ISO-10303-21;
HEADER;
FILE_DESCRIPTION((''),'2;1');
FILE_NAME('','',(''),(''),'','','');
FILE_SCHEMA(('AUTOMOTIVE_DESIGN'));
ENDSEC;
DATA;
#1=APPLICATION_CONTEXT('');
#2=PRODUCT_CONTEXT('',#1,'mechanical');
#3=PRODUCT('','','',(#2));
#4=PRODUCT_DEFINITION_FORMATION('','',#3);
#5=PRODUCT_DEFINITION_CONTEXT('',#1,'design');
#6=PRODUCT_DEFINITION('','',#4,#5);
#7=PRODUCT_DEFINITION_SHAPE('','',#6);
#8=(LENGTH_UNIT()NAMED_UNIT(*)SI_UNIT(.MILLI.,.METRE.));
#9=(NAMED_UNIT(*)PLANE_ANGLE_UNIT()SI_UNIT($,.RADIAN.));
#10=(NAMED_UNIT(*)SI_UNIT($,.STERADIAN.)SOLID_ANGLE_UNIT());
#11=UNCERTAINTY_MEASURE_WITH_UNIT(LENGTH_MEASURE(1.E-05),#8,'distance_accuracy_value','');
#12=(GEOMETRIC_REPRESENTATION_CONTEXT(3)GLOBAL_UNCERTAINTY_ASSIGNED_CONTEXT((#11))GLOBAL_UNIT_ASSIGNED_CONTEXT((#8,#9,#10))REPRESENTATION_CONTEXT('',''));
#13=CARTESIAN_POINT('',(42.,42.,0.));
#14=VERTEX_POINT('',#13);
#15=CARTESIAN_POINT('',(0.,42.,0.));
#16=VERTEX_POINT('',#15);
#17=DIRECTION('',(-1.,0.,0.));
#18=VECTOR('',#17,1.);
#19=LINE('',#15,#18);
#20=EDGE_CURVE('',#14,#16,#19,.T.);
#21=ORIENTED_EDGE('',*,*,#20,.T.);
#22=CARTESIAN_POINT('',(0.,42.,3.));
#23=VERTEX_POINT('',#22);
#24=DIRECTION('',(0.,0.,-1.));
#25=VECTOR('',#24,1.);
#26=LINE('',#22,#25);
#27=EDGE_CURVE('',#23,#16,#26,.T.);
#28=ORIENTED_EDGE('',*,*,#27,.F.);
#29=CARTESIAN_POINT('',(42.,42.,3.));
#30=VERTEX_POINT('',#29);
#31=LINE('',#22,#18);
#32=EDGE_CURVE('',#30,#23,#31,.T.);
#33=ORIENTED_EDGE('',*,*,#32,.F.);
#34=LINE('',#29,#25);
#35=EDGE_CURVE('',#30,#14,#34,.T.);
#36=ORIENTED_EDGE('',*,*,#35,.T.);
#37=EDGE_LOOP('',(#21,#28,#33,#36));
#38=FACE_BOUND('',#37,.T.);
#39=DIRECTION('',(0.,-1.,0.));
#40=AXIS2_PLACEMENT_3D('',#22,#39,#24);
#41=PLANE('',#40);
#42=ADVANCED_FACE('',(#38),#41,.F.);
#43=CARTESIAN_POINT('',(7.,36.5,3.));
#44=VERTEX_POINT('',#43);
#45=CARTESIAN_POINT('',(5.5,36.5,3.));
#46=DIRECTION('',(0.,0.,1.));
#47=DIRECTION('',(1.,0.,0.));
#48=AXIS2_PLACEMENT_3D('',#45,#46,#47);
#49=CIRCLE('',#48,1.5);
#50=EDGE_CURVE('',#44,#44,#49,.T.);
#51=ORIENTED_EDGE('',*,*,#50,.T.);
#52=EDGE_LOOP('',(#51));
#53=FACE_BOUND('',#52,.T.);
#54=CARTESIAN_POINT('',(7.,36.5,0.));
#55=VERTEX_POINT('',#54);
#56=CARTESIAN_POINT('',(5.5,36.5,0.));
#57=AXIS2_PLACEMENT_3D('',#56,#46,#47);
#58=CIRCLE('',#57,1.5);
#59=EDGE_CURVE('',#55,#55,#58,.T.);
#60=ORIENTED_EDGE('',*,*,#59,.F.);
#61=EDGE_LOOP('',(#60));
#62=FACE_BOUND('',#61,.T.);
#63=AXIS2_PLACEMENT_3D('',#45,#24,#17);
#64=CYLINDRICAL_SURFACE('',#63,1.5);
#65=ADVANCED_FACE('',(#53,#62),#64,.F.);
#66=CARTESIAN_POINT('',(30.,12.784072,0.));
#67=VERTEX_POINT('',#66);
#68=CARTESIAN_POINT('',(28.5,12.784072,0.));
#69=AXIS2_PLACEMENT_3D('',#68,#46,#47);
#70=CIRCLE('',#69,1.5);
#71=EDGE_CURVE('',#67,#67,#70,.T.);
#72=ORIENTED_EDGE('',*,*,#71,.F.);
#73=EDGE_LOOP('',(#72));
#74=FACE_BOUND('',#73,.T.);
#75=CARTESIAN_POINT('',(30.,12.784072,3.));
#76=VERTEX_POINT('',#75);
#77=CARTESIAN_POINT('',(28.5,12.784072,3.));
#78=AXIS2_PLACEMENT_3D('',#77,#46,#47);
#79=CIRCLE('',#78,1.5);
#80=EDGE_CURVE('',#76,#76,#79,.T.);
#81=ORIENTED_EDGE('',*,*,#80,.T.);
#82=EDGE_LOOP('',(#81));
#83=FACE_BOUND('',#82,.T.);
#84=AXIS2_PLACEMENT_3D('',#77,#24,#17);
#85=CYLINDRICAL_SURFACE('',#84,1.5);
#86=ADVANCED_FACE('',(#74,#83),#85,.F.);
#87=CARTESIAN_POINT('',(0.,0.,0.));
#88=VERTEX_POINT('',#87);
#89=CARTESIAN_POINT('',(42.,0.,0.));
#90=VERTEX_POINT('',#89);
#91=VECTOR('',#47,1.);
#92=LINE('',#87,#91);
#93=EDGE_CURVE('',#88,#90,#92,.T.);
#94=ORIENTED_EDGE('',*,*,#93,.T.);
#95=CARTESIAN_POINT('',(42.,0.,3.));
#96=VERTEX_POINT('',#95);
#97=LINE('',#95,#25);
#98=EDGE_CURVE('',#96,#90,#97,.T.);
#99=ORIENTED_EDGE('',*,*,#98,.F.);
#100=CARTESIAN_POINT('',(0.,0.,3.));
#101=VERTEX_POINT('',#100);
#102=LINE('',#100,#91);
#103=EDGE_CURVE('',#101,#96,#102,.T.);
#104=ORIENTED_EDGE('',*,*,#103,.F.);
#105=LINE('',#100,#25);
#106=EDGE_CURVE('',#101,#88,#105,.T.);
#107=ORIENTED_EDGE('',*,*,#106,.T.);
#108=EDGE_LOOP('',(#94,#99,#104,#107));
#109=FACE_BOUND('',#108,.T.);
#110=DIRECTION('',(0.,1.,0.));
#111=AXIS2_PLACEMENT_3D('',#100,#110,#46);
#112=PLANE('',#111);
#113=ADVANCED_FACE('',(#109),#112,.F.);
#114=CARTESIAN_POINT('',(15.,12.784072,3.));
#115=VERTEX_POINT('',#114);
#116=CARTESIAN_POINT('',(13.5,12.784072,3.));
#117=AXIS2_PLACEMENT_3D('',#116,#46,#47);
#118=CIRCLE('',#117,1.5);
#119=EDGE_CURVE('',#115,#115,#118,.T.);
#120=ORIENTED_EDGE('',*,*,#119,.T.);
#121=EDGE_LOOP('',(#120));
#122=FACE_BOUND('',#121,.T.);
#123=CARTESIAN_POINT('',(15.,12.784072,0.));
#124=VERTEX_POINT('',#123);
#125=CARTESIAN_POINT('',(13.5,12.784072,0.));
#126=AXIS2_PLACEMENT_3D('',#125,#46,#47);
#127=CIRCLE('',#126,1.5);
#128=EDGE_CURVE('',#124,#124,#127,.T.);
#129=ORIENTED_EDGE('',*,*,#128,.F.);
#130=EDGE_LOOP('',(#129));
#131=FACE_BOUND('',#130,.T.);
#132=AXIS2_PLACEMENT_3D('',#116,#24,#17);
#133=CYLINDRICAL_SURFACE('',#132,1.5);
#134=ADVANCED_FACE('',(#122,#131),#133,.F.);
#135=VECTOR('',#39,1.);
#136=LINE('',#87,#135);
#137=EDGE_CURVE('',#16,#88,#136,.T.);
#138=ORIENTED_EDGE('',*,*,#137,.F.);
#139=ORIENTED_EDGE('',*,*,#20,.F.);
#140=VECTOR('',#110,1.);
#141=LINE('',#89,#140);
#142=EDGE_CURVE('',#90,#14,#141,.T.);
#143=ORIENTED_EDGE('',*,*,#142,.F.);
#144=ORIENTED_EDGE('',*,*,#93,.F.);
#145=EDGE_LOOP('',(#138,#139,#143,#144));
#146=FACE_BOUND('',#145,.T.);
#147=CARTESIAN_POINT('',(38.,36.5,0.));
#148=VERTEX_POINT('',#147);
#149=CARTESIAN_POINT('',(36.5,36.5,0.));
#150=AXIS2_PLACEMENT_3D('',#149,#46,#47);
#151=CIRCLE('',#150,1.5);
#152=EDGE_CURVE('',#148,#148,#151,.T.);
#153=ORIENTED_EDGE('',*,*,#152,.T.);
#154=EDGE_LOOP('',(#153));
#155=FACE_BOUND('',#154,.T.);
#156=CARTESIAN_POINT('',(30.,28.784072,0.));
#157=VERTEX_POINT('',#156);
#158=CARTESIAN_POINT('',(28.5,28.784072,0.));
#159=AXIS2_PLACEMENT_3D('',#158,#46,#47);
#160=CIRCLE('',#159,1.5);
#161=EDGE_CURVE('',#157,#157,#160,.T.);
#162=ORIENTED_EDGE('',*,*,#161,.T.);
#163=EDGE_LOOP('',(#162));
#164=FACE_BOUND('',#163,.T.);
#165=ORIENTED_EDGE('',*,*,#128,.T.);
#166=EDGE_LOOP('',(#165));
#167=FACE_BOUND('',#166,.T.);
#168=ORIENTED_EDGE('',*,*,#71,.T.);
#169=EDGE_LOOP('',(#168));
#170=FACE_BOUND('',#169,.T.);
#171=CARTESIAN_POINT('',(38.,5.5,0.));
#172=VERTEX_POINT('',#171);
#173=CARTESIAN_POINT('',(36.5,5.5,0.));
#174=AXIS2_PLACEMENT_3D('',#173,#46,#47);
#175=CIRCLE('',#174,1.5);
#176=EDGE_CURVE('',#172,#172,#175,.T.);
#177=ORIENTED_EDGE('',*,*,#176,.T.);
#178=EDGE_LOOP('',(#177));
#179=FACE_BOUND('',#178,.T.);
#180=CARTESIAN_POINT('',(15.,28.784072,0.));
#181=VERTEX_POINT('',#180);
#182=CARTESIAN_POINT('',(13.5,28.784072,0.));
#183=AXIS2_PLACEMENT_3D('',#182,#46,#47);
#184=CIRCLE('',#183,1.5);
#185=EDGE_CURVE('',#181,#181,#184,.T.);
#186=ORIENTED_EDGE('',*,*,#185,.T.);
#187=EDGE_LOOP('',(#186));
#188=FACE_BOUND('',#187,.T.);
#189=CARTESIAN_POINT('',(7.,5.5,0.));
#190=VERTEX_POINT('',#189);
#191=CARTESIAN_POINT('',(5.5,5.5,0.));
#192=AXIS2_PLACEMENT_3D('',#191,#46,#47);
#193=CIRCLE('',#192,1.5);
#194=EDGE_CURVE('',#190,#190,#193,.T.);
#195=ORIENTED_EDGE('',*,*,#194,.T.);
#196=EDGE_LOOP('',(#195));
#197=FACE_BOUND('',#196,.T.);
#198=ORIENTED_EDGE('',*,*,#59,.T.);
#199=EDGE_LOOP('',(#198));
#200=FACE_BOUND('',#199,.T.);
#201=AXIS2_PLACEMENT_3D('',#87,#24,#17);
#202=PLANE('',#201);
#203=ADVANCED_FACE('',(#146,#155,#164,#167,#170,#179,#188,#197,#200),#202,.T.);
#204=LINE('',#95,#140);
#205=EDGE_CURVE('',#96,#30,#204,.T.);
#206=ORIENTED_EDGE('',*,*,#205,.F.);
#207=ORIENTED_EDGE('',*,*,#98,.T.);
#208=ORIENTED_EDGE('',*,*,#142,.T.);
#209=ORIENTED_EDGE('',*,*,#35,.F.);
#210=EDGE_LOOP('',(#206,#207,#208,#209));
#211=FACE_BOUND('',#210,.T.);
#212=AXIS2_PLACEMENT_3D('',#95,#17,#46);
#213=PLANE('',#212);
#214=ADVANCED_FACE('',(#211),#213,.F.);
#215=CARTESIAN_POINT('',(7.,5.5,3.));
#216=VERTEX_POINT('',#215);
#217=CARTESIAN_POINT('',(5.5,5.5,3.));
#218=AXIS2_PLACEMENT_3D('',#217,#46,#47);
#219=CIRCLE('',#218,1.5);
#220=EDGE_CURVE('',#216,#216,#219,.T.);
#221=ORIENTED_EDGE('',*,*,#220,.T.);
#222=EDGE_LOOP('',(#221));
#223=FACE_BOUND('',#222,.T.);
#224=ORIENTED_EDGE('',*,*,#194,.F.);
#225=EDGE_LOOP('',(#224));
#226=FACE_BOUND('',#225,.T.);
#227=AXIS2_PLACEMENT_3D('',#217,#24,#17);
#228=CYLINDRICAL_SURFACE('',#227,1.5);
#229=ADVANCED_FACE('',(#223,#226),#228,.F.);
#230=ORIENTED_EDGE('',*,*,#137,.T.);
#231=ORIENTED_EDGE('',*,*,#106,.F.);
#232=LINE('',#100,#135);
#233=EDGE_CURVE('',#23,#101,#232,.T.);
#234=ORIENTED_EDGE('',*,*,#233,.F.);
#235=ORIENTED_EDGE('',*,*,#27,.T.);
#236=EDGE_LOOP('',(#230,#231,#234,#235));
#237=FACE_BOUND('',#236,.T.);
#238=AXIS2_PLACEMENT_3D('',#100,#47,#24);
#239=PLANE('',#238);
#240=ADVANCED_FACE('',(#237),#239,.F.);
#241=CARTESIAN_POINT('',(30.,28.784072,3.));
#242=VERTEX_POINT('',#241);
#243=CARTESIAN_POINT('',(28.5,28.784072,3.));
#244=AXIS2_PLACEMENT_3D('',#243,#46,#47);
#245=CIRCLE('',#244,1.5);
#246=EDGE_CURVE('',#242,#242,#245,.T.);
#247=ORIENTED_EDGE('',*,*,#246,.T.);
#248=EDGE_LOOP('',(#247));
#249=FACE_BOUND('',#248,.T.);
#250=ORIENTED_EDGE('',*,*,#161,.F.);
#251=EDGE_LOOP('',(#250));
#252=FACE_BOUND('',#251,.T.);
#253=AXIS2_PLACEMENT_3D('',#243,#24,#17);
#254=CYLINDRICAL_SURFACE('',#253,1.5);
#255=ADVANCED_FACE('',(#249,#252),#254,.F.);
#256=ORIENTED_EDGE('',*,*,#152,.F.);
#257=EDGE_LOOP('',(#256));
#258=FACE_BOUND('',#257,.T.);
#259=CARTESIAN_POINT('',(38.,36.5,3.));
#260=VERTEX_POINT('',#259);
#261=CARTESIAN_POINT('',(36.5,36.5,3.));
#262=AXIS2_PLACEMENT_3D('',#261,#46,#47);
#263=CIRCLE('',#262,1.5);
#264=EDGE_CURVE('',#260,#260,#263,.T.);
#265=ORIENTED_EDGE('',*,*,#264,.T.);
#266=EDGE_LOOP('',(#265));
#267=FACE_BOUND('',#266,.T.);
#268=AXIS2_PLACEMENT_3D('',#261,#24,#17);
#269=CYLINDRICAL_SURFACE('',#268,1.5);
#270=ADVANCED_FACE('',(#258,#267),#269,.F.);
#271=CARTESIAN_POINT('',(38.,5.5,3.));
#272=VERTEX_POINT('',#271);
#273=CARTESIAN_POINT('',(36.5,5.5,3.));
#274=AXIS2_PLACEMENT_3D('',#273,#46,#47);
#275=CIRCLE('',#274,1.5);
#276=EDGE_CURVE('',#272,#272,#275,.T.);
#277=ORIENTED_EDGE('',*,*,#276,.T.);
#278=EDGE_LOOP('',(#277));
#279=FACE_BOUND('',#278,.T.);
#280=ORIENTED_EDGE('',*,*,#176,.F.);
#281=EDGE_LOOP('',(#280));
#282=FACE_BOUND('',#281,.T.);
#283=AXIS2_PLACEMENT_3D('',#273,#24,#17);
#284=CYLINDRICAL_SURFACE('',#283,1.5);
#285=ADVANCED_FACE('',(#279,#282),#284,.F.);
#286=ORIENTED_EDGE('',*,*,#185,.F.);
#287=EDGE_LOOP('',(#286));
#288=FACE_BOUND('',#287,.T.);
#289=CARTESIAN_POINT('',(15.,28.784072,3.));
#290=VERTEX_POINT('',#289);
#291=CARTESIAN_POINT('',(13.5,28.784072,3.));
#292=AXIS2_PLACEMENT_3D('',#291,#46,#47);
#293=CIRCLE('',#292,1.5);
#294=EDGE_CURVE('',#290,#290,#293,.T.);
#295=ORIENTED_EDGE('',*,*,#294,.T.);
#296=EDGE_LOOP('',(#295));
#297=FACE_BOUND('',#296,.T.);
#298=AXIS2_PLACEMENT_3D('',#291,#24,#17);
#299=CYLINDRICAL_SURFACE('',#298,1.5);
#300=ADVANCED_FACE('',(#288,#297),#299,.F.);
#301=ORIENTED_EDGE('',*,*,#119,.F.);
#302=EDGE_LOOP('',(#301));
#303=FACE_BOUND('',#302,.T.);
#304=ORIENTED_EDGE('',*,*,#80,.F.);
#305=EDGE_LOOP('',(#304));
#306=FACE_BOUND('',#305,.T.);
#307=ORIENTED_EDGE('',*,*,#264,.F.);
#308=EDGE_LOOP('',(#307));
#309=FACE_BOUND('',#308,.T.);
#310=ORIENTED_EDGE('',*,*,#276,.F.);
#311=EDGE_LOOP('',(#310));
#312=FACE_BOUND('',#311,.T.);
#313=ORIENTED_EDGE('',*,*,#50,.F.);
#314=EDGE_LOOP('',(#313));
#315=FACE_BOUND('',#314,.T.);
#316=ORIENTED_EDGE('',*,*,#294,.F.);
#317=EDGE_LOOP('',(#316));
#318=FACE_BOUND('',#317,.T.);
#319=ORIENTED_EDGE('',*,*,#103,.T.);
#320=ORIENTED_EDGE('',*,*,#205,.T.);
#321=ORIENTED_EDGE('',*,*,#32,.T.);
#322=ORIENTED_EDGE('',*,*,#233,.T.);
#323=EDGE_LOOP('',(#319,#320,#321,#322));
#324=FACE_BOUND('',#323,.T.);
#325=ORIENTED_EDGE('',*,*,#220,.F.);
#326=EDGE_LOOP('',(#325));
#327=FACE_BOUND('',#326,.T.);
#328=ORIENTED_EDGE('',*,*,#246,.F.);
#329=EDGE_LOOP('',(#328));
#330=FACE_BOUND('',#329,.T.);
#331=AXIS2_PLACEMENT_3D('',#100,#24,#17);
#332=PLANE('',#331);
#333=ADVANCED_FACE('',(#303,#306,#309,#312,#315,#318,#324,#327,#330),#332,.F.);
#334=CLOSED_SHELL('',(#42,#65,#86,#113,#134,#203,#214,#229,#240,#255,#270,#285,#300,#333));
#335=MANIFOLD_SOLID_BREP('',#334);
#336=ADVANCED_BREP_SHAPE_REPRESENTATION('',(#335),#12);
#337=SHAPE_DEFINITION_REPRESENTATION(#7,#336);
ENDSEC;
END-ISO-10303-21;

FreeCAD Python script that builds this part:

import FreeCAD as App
import Part
import Sketcher

V = App.Vector
Q = App.Units.Quantity

doc = App.newDocument("Part")
params = doc.addObject("Spreadsheet::Sheet", "Params")
for row, (alias, value) in enumerate([
    ("sketch1_diameter", "3 mm"),
    ("sketch1_width", "42 mm"),
    ("pad1_length", "3 mm"),
], start=1):
    params.set(f"A{row}", alias)
    params.set(f"B{row}", "=" + value)
    params.setAlias(f"B{row}", alias)

body = doc.addObject("PartDesign::Body", "Body")

# Sketch on XY plane
sketch1 = doc.addObject("Sketcher::SketchObject", "Sketch")
body.addObject(sketch1)
sketch1.AttachmentSupport = (doc.XY_Plane, [""])
sketch1.MapMode = "FlatFace"
sketch1.addGeometry(Part.LineSegment(V(0, 42, 0), V(0, 0, 0)), False)
sketch1.addGeometry(Part.LineSegment(V(0, 0, 0), V(42, 0, 0)), False)
sketch1.addGeometry(Part.LineSegment(V(42, 0, 0), V(42, 42, 0)), False)
sketch1.addGeometry(Part.LineSegment(V(42, 42, 0), V(0, 42, 0)), False)
sketch1.addGeometry(Part.Circle(V(5.5, 5.5, 0), V(0, 0, 1), 1.5), False)
sketch1.addGeometry(Part.Circle(V(13.5, 12.8, 0), V(0, 0, 1), 1.5), False)
sketch1.addGeometry(Part.Circle(V(36.5, 5.5, 0), V(0, 0, 1), 1.5), False)
sketch1.addGeometry(Part.Circle(V(28.5, 12.8, 0), V(0, 0, 1), 1.5), False)
sketch1.addGeometry(Part.Circle(V(13.5, 28.8, 0), V(0, 0, 1), 1.5), False)
sketch1.addGeometry(Part.Circle(V(5.5, 36.5, 0), V(0, 0, 1), 1.5), False)
sketch1.addGeometry(Part.Circle(V(28.5, 28.8, 0), V(0, 0, 1), 1.5), False)
sketch1.addGeometry(Part.Circle(V(36.5, 36.5, 0), V(0, 0, 1), 1.5), False)
sketch1.addConstraint(Sketcher.Constraint("Coincident", 0, 2, 1, 1))
sketch1.addConstraint(Sketcher.Constraint("Coincident", 1, 2, 2, 1))
sketch1.addConstraint(Sketcher.Constraint("Coincident", 2, 2, 3, 1))
sketch1.addConstraint(Sketcher.Constraint("Coincident", 3, 2, 0, 1))
sketch1.addConstraint(Sketcher.Constraint("Vertical", 0))
sketch1.addConstraint(Sketcher.Constraint("Horizontal", 1))
sketch1.addConstraint(Sketcher.Constraint("Vertical", 2))
sketch1.addConstraint(Sketcher.Constraint("Horizontal", 3))
sketch1.addConstraint(Sketcher.Constraint("Coincident", 0, 2, -1, 1))
sketch1.addConstraint(Sketcher.Constraint("Equal", 4, 5))
sketch1.addConstraint(Sketcher.Constraint("Equal", 5, 6))
sketch1.addConstraint(Sketcher.Constraint("Equal", 6, 7))
sketch1.addConstraint(Sketcher.Constraint("Equal", 7, 8))
sketch1.addConstraint(Sketcher.Constraint("Equal", 8, 9))
sketch1.addConstraint(Sketcher.Constraint("Equal", 9, 10))
sketch1.addConstraint(Sketcher.Constraint("Equal", 10, 11))
sketch1.addConstraint(Sketcher.Constraint("Horizontal", 4, 3, 6, 3))
sketch1.addConstraint(Sketcher.Constraint("Horizontal", 5, 3, 7, 3))
sketch1.addConstraint(Sketcher.Constraint("Horizontal", 8, 3, 10, 3))
sketch1.addConstraint(Sketcher.Constraint("Horizontal", 9, 3, 11, 3))
sketch1.addConstraint(Sketcher.Constraint("Vertical", 5, 3, 8, 3))
sketch1.addConstraint(Sketcher.Constraint("Vertical", 4, 3, 9, 3))
sketch1.addConstraint(Sketcher.Constraint("Vertical", 7, 3, 10, 3))
sketch1.addConstraint(Sketcher.Constraint("Vertical", 6, 3, 11, 3))
sketch1.addConstraint(Sketcher.Constraint("Equal", 3, 0))
sketch1.addConstraint(Sketcher.Constraint("Diameter", 4, Q("3 mm")))
sketch1.addConstraint(Sketcher.Constraint("DistanceX", 1, 1, 1, 2, Q("42 mm")))
sketch1.addConstraint(Sketcher.Constraint("DistanceX", 4, 3, 5, 3, Q("8 mm")))
sketch1.addConstraint(Sketcher.Constraint("DistanceX", 5, 3, 6, 3, Q("23 mm")))
sketch1.addConstraint(Sketcher.Constraint("DistanceX", 7, 3, 6, 3, Q("8 mm")))
sketch1.addConstraint(Sketcher.Constraint("DistanceY", 5, 3, 8, 3, Q("16 mm")))
sketch1.addConstraint(Sketcher.Constraint("DistanceY", 4, 3, 9, 3, Q("31 mm")))
sketch1.addConstraint(Sketcher.Constraint("DistanceX", -1, 1, 4, 3, Q("5.5 mm")))
sketch1.addConstraint(Sketcher.Constraint("DistanceY", -1, 1, 4, 3, Q("5.5 mm")))
sketch1.addConstraint(Sketcher.Constraint("DistanceY", -1, 1, 5, 3, Q("12.784072 mm")))
sketch1.setExpression("Constraints[25]", "Params.sketch1_diameter")
sketch1.setExpression("Constraints[26]", "Params.sketch1_width")
pad1 = doc.addObject("PartDesign::Pad", "Pad")
body.addObject(pad1)
pad1.Profile = sketch1
pad1.setExpression("Length", "Params.pad1_length")

doc.recompute()
